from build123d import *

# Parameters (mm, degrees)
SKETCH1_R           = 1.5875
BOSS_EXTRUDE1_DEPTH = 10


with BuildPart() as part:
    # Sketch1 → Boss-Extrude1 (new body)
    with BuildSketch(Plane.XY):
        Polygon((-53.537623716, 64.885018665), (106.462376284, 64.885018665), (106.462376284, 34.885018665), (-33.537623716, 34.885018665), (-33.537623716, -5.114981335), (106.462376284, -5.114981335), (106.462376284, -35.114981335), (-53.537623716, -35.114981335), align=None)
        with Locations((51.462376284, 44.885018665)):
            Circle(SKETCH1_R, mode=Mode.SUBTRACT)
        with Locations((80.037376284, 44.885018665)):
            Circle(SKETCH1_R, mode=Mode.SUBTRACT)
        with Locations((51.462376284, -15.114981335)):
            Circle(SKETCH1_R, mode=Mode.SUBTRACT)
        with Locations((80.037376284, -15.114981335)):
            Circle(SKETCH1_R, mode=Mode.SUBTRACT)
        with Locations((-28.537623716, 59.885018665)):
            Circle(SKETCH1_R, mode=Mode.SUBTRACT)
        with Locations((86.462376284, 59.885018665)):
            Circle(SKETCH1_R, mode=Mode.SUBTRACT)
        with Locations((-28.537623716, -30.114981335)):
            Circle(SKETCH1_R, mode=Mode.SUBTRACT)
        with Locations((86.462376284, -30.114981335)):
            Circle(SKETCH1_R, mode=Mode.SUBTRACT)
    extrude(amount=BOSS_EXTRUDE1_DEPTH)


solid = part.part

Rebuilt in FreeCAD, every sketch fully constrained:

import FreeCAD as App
import Part
import Sketcher

V = App.Vector
Q = App.Units.Quantity

doc = App.newDocument("Part")
params = doc.addObject("Spreadsheet::Sheet", "Params")
for row, (alias, value) in enumerate([
    ("sketch1_width", "160 mm"),
    ("sketch1_width2", "140 mm"),
    ("sketch1_height", "100 mm"),
    ("sketch1_height2", "30 mm"),
    ("pad1_length", "10 mm"),
], start=1):
    params.set(f"A{row}", alias)
    params.set(f"B{row}", "=" + value)
    params.setAlias(f"B{row}", alias)

body = doc.addObject("PartDesign::Body", "Body")

sketch1 = body.newObject("Sketcher::SketchObject", "Sketch")
sketch1.AttachmentSupport = (doc.getObject("XY_Plane"), [""])
sketch1.MapMode = "FlatFace"
sketch1.addGeometry([
    Part.LineSegment(V(106.462376, 64.885019, 0), V(-53.537624, 64.885019, 0)),
    Part.LineSegment(V(-53.537624, 64.885019, 0), V(-53.537624, -35.114981, 0)),
    Part.LineSegment(V(-53.537624, -35.114981, 0), V(106.462376, -35.114981, 0)),
    Part.LineSegment(V(106.462376, -35.114981, 0), V(106.462376, -5.114981, 0)),
    Part.LineSegment(V(106.462376, -5.114981, 0), V(-33.537624, -5.114981, 0)),
    Part.LineSegment(V(-33.537624, -5.114981, 0), V(-33.537624, 34.885019, 0)),
    Part.LineSegment(V(-33.537624, 34.885019, 0), V(106.462376, 34.885019, 0)),
    Part.LineSegment(V(106.462376, 34.885019, 0), V(106.462376, 64.885019, 0)),
    Part.Circle(V(86.462376, -30.114981, 0), V(0, 0, 1), 1.5875),
    Part.Circle(V(80.037376, -15.114981, 0), V(0, 0, 1), 1.5875),
    Part.Circle(V(51.462376, -15.114981, 0), V(0, 0, 1), 1.5875),
    Part.Circle(V(-28.537624, -30.114981, 0), V(0, 0, 1), 1.5875),
    Part.Circle(V(80.037376, 44.885019, 0), V(0, 0, 1), 1.5875),
    Part.Circle(V(86.462376, 59.885019, 0), V(0, 0, 1), 1.5875),
    Part.Circle(V(51.462376, 44.885019, 0), V(0, 0, 1), 1.5875),
    Part.Circle(V(-28.537624, 59.885019, 0), V(0, 0, 1), 1.5875),
], False)
sketch1.addConstraint([
    Sketcher.Constraint("Coincident", 0, 2, 1, 1),
    Sketcher.Constraint("Coincident", 1, 2, 2, 1),
    Sketcher.Constraint("Coincident", 2, 2, 3, 1),
    Sketcher.Constraint("Coincident", 3, 2, 4, 1),
    Sketcher.Constraint("Coincident", 4, 2, 5, 1),
    Sketcher.Constraint("Coincident", 5, 2, 6, 1),
    Sketcher.Constraint("Coincident", 6, 2, 7, 1),
    Sketcher.Constraint("Coincident", 7, 2, 0, 1),
    Sketcher.Constraint("Horizontal", 0),
    Sketcher.Constraint("Vertical", 1),
    Sketcher.Constraint("Horizontal", 2),
    Sketcher.Constraint("Vertical", 3),
    Sketcher.Constraint("Horizontal", 4),
    Sketcher.Constraint("Vertical", 5),
    Sketcher.Constraint("Horizontal", 6),
    Sketcher.Constraint("Vertical", 7),
    Sketcher.Constraint("Equal", 8, 9),
    Sketcher.Constraint("Equal", 9, 10),
    Sketcher.Constraint("Equal", 10, 11),
    Sketcher.Constraint("Equal", 11, 12),
    Sketcher.Constraint("Equal", 12, 13),
    Sketcher.Constraint("Equal", 13, 14),
    Sketcher.Constraint("Equal", 14, 15),
    Sketcher.Constraint("Horizontal", 9, 3, 10, 3),
    Sketcher.Constraint("Horizontal", 8, 3, 11, 3),
    Sketcher.Constraint("Horizontal", 12, 3, 14, 3),
    Sketcher.Constraint("Horizontal", 13, 3, 15, 3),
    Sketcher.Constraint("Vertical", 9, 3, 12, 3),
    Sketcher.Constraint("Vertical", 8, 3, 13, 3),
    Sketcher.Constraint("Vertical", 10, 3, 14, 3),
    Sketcher.Constraint("Vertical", 11, 3, 15, 3),
    Sketcher.Constraint("Vertical", 3, 2, 6, 2),
    Sketcher.Constraint("Equal", 3, 7),
    Sketcher.Constraint("DistanceX", 0, 2, 0, 1, Q("160 mm")),
    Sketcher.Constraint("DistanceX", 4, 2, 4, 1, Q("140 mm")),
    Sketcher.Constraint("DistanceY", 1, 2, 1, 1, Q("100 mm")),
    Sketcher.Constraint("DistanceY", 3, 1, 3, 2, Q("30 mm")),
    Sketcher.Constraint("Diameter", 8, Q("3.175 mm")),
    Sketcher.Constraint("DistanceY", 8, 3, 9, 3, Q("15 mm")),
    Sketcher.Constraint("DistanceX", 10, 3, 8, 3, Q("35 mm")),
    Sketcher.Constraint("DistanceX", 11, 3, 10, 3, Q("80 mm")),
    Sketcher.Constraint("DistanceY", 9, 3, 12, 3, Q("60 mm")),
    Sketcher.Constraint("DistanceY", 12, 3, 13, 3, Q("15 mm")),
    Sketcher.Constraint("DistanceX", 0, 2, 15, 3, Q("25 mm")),
    Sketcher.Constraint("DistanceY", 15, 3, 0, 2, Q("5 mm")),
    Sketcher.Constraint("DistanceX", 9, 3, 8, 3, Q("6.425 mm")),
    Sketcher.Constraint("DistanceY", 8, 3, -1, 1, Q("30.114981 mm")),
    Sketcher.Constraint("DistanceX", -1, 1, 8, 3, Q("86.462376 mm")),
])
sketch1.setExpression("Constraints[33]", "Params.sketch1_width")
sketch1.setExpression("Constraints[34]", "Params.sketch1_width2")
sketch1.setExpression("Constraints[35]", "Params.sketch1_height")
sketch1.setExpression("Constraints[36]", "Params.sketch1_height2")
pad1 = body.newObject("PartDesign::Pad", "Pad")
pad1.Profile = sketch1
pad1.setExpression("Length", "Params.pad1_length")

doc.recompute()
